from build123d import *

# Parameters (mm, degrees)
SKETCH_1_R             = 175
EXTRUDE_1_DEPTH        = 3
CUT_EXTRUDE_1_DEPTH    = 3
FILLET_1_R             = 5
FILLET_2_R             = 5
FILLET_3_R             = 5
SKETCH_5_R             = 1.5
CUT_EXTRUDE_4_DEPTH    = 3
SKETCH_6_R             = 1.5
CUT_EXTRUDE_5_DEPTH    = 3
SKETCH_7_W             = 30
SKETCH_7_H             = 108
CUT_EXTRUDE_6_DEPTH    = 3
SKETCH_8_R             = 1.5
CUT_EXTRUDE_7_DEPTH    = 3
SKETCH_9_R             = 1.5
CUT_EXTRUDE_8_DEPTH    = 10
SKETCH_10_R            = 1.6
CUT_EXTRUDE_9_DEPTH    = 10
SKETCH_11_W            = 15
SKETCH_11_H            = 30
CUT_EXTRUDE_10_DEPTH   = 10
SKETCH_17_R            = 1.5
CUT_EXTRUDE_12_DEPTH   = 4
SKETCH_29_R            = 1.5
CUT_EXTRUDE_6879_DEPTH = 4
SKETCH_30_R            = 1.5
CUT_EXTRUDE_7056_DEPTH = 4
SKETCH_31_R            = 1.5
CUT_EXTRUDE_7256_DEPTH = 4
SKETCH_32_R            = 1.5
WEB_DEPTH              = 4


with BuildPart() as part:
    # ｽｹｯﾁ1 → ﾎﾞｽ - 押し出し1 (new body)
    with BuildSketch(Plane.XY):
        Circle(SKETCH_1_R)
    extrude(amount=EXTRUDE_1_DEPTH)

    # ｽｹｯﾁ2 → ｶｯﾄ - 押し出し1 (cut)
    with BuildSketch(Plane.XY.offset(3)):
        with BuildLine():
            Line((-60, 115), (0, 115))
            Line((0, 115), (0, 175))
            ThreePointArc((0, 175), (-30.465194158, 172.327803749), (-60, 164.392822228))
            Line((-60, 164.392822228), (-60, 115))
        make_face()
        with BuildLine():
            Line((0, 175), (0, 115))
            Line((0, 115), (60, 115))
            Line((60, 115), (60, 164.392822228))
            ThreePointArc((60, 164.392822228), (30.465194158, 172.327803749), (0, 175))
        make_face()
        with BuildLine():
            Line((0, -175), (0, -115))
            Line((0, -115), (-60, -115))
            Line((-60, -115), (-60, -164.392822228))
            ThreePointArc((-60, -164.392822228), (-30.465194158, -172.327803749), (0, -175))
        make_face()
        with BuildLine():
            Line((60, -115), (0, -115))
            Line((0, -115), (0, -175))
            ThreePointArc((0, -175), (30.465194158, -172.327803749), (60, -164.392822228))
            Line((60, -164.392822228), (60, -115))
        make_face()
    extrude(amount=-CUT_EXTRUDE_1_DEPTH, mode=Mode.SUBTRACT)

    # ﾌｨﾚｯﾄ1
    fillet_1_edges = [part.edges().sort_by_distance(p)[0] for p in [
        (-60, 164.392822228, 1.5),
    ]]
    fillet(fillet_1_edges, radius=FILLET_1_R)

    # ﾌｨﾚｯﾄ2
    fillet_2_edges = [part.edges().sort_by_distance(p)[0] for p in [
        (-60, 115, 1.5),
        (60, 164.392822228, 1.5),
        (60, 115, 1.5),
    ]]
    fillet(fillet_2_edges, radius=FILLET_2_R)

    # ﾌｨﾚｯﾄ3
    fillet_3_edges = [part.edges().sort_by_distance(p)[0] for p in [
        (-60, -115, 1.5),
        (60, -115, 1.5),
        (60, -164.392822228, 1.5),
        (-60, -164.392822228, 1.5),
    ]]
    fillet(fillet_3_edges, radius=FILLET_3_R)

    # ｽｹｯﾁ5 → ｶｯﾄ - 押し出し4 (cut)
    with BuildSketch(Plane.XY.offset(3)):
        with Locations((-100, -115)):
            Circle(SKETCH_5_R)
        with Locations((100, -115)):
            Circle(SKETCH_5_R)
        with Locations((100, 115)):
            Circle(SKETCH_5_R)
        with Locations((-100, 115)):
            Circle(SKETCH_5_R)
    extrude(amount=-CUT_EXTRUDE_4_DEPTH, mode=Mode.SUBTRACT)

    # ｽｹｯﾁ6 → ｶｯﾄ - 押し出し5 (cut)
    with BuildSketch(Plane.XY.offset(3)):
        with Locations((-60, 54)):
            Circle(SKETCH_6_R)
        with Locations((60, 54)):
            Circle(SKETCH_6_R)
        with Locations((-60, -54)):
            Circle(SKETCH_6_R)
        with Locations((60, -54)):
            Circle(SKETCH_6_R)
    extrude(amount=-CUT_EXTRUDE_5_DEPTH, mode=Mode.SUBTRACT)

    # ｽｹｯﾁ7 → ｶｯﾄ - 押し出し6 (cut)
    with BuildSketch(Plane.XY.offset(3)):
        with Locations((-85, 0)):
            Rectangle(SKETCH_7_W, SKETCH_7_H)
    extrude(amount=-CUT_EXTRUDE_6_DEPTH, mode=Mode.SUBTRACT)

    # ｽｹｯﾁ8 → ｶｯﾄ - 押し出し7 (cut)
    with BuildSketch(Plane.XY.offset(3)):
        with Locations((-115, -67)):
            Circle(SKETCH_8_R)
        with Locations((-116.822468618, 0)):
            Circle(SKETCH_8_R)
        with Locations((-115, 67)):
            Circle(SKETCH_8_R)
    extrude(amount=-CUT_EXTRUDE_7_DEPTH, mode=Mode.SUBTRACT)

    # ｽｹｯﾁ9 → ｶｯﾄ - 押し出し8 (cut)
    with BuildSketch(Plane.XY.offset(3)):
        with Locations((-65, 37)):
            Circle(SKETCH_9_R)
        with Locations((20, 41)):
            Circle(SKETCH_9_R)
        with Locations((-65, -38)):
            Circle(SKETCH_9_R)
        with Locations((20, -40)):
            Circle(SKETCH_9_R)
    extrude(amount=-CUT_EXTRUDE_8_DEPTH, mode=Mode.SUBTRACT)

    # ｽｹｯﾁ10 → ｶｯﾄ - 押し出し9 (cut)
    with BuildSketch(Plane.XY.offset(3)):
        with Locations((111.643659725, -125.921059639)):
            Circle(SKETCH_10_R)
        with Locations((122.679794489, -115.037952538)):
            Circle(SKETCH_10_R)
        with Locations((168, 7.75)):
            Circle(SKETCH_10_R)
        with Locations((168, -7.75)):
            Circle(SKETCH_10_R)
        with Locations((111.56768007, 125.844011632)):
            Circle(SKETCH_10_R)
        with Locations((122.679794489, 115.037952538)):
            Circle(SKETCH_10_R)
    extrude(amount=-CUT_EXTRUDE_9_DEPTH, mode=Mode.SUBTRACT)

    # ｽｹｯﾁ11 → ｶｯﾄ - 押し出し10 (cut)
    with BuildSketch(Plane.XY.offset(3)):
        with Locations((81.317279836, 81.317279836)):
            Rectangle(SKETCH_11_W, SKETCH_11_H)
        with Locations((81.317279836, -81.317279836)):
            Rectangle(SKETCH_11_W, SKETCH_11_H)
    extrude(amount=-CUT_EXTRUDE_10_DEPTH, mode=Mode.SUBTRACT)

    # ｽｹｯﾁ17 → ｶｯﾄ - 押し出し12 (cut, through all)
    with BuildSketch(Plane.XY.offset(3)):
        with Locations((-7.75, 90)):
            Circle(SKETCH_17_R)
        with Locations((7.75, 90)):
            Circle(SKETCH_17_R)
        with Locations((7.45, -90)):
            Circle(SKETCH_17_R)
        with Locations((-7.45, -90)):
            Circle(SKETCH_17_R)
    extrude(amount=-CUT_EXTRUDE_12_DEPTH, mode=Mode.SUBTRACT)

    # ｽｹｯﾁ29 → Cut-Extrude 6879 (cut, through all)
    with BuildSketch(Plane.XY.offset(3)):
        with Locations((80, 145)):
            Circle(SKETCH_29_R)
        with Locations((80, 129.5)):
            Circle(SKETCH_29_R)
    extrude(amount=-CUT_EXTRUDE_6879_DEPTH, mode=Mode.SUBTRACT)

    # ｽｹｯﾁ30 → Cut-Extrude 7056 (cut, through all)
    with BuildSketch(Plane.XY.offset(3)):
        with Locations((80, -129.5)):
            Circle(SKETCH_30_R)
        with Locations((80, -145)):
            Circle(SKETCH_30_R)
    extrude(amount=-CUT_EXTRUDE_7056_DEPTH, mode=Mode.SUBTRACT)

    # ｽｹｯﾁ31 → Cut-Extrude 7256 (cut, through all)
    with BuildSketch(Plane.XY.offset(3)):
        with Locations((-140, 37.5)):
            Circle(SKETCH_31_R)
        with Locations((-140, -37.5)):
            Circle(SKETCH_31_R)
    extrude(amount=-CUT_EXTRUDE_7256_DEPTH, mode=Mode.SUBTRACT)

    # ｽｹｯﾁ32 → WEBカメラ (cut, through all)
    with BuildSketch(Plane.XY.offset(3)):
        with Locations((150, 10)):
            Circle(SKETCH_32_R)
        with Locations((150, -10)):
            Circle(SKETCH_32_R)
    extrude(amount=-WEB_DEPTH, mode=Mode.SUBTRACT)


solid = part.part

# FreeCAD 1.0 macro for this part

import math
import FreeCAD as App
import Part
import Sketcher


def edges_at(feature, points):
    """Names of the edges that pass closest to the given points."""
    edges = feature.Shape.Edges
    near = lambda p: min(range(len(edges)), key=lambda i: edges[i].distToShape(Part.Vertex(*p))[0])
    return sorted({f"Edge{near(p) + 1}" for p in points})

doc = App.newDocument("Part")
body = doc.addObject("PartDesign::Body", "Body")

sketch1 = doc.addObject("Sketcher::SketchObject", "Sketch")
body.addObject(sketch1)
sketch1.AttachmentSupport = (doc.XY_Plane, [""])
sketch1.MapMode = "FlatFace"
sketch1.addGeometry(Part.Circle(App.Vector(0, 0, 0), App.Vector(0, 0, 1), 175), False)
sketch1.addConstraint([
    Sketcher.Constraint("Coincident", 0, 3, -1, 1),
    Sketcher.Constraint("Diameter", 0, 350.0),
])
pad1 = doc.addObject("PartDesign::Pad", "Pad")
body.addObject(pad1)
pad1.Profile = sketch1
pad1.Length = 3

sketch2 = doc.addObject("Sketcher::SketchObject", "Sketch001")
body.addObject(sketch2)
sketch2.AttachmentSupport = (doc.XY_Plane, [""])
sketch2.MapMode = "FlatFace"
sketch2.AttachmentOffset = App.Placement(App.Vector(0, 0, 3), App.Rotation())
sketch2.addGeometry([
    Part.LineSegment(App.Vector(-60, 115, 0), App.Vector(60, 115, 0)),
    Part.LineSegment(App.Vector(60, 115, 0), App.Vector(60, 164, 0)),
    Part.ArcOfCircle(Part.Circle(App.Vector(0, 0, 0), App.Vector(0, 0, 1), 175), math.radians(70), math.radians(90)),
    Part.ArcOfCircle(Part.Circle(App.Vector(0, 0, 0), App.Vector(0, 0, 1), 175), math.radians(90), math.radians(110)),
    Part.LineSegment(App.Vector(-60, 164, 0), App.Vector(-60, 115, 0)),
    Part.LineSegment(App.Vector(-60, -115, 0), App.Vector(-60, -164, 0)),
    Part.ArcOfCircle(Part.Circle(App.Vector(0, 0, 0), App.Vector(0, 0, 1), 175), math.radians(-110), math.radians(-90)),
    Part.ArcOfCircle(Part.Circle(App.Vector(0, 0, 0), App.Vector(0, 0, 1), 175), math.radians(-90), math.radians(-70)),
    Part.LineSegment(App.Vector(60, -164, 0), App.Vector(60, -115, 0)),
    Part.LineSegment(App.Vector(60, -115, 0), App.Vector(-60, -115, 0)),
], False)
sketch2.addConstraint([
    Sketcher.Constraint("Coincident", 0, 2, 1, 1),
    Sketcher.Constraint("Coincident", 1, 2, 2, 1),
    Sketcher.Constraint("Tangent", 2, 2, 3, 1),
    Sketcher.Constraint("Coincident", 3, 2, 4, 1),
    Sketcher.Constraint("Coincident", 4, 2, 0, 1),
    Sketcher.Constraint("Coincident", 5, 2, 6, 1),
    Sketcher.Constraint("Tangent", 6, 2, 7, 1),
    Sketcher.Constraint("Coincident", 7, 2, 8, 1),
    Sketcher.Constraint("Coincident", 8, 2, 9, 1),
    Sketcher.Constraint("Coincident", 9, 2, 5, 1),
    Sketcher.Constraint("Horizontal", 0),
    Sketcher.Constraint("Vertical", 1),
    Sketcher.Constraint("Vertical", 4),
    Sketcher.Constraint("Vertical", 5),
    Sketcher.Constraint("Vertical", 8),
    Sketcher.Constraint("Horizontal", 9),
    Sketcher.Constraint("Coincident", 2, 3, -1, 1),
    Sketcher.Constraint("Coincident", 6, 3, -1, 1),
    Sketcher.Constraint("Equal", 2, 3),
    Sketcher.Constraint("Equal", 3, 6),
    Sketcher.Constraint("Equal", 6, 7),
    Sketcher.Constraint("Symmetric", 4, 2, 8, 2, -1, 1),
    Sketcher.Constraint("PointOnObject", 2, 2, -2),
    Sketcher.Constraint("PointOnObject", 6, 2, -2),
    Sketcher.Constraint("Horizontal", 1, 2, 3, 2),
    Sketcher.Constraint("Horizontal", 5, 2, 7, 2),
    Sketcher.Constraint("Radius", 2, 175.0),
    Sketcher.Constraint("DistanceX", 0, 1, 0, 2, 120.0),
    Sketcher.Constraint("DistanceY", -1, 1, 0, 2, 115.0),
])
pocket1 = doc.addObject("PartDesign::Pocket", "Pocket")
body.addObject(pocket1)
pocket1.Profile = sketch2
pocket1.Length = 3
doc.recompute()

fillet = doc.addObject("PartDesign::Fillet", "Fillet")
body.addObject(fillet)
fillet.Base = (pocket1, edges_at(pocket1, [(-60, 164.393, 1.5)]))
fillet.Radius = 5
doc.recompute()

fillet2 = doc.addObject("PartDesign::Fillet", "Fillet001")
body.addObject(fillet2)
fillet2.Base = (fillet, edges_at(fillet, [(-60, 115, 1.5), (60, 164.393, 1.5), (60, 115, 1.5)]))
fillet2.Radius = 5
doc.recompute()

fillet3 = doc.addObject("PartDesign::Fillet", "Fillet002")
body.addObject(fillet3)
fillet3.Base = (fillet2, edges_at(fillet2, [
    (-60, -115, 1.5),
    (60, -115, 1.5),
    (60, -164.393, 1.5),
    (-60, -164.393, 1.5),
]))
fillet3.Radius = 5

sketch3 = doc.addObject("Sketcher::SketchObject", "Sketch002")
body.addObject(sketch3)
sketch3.AttachmentSupport = (doc.XY_Plane, [""])
sketch3.MapMode = "FlatFace"
sketch3.AttachmentOffset = App.Placement(App.Vector(0, 0, 3), App.Rotation())
sketch3.addGeometry([
    Part.Circle(App.Vector(-100, -115, 0), App.Vector(0, 0, 1), 1.5),
    Part.Circle(App.Vector(100, -115, 0), App.Vector(0, 0, 1), 1.5),
    Part.Circle(App.Vector(100, 115, 0), App.Vector(0, 0, 1), 1.5),
    Part.Circle(App.Vector(-100, 115, 0), App.Vector(0, 0, 1), 1.5),
], False)
sketch3.addConstraint([
    Sketcher.Constraint("Equal", 0, 1),
    Sketcher.Constraint("Equal", 1, 2),
    Sketcher.Constraint("Equal", 2, 3),
    Sketcher.Constraint("Symmetric", 0, 3, 2, 3, -1, 1),
    Sketcher.Constraint("Symmetric", 1, 3, 3, 3, -1, 1),
    Sketcher.Constraint("Symmetric", 0, 3, 1, 3, -2),
    Sketcher.Constraint("Diameter", 0, 3.0),
    Sketcher.Constraint("DistanceX", 0, 3, -1, 1, 100.0),
    Sketcher.Constraint("DistanceY", 0, 3, -1, 1, 115.0),
])
pocket2 = doc.addObject("PartDesign::Pocket", "Pocket001")
body.addObject(pocket2)
pocket2.Profile = sketch3
pocket2.Length = 3

sketch4 = doc.addObject("Sketcher::SketchObject", "Sketch003")
body.addObject(sketch4)
sketch4.AttachmentSupport = (doc.XY_Plane, [""])
sketch4.MapMode = "FlatFace"
sketch4.AttachmentOffset = App.Placement(App.Vector(0, 0, 3), App.Rotation())
sketch4.addGeometry([
    Part.Circle(App.Vector(-60, 54, 0), App.Vector(0, 0, 1), 1.5),
    Part.Circle(App.Vector(60, 54, 0), App.Vector(0, 0, 1), 1.5),
    Part.Circle(App.Vector(-60, -54, 0), App.Vector(0, 0, 1), 1.5),
    Part.Circle(App.Vector(60, -54, 0), App.Vector(0, 0, 1), 1.5),
], False)
sketch4.addConstraint([
    Sketcher.Constraint("Equal", 0, 1),
    Sketcher.Constraint("Equal", 1, 2),
    Sketcher.Constraint("Equal", 2, 3),
    Sketcher.Constraint("Symmetric", 1, 3, 2, 3, -1, 1),
    Sketcher.Constraint("Symmetric", 0, 3, 3, 3, -1, 1),
    Sketcher.Constraint("Symmetric", 0, 3, 1, 3, -2),
    Sketcher.Constraint("Diameter", 0, 3.0),
    Sketcher.Constraint("DistanceX", 0, 3, -1, 1, 60.0),
    Sketcher.Constraint("DistanceY", -1, 1, 0, 3, 54.0),
])
pocket3 = doc.addObject("PartDesign::Pocket", "Pocket002")
body.addObject(pocket3)
pocket3.Profile = sketch4
pocket3.Length = 3

sketch5 = doc.addObject("Sketcher::SketchObject", "Sketch004")
body.addObject(sketch5)
sketch5.AttachmentSupport = (doc.XY_Plane, [""])
sketch5.MapMode = "FlatFace"
sketch5.AttachmentOffset = App.Placement(App.Vector(0, 0, 3), App.Rotation())
sketch5.addGeometry([
    Part.LineSegment(App.Vector(-100, 54, 0), App.Vector(-100, -54, 0)),
    Part.LineSegment(App.Vector(-100, -54, 0), App.Vector(-70, -54, 0)),
    Part.LineSegment(App.Vector(-70, -54, 0), App.Vector(-70, 54, 0)),
    Part.LineSegment(App.Vector(-70, 54, 0), App.Vector(-100, 54, 0)),
], False)
sketch5.addConstraint([
    Sketcher.Constraint("Coincident", 0, 2, 1, 1),
    Sketcher.Constraint("Coincident", 1, 2, 2, 1),
    Sketcher.Constraint("Coincident", 2, 2, 3, 1),
    Sketcher.Constraint("Coincident", 3, 2, 0, 1),
    Sketcher.Constraint("Vertical", 0),
    Sketcher.Constraint("Horizontal", 1),
    Sketcher.Constraint("Vertical", 2),
    Sketcher.Constraint("Horizontal", 3),
    Sketcher.Constraint("DistanceX", 1, 1, 1, 2, 30.0),
    Sketcher.Constraint("DistanceY", 0, 2, 0, 1, 108.0),
    Sketcher.Constraint("DistanceX", 0, 2, -1, 1, 100.0),
    Sketcher.Constraint("DistanceY", 0, 2, -1, 1, 54.0),
])
pocket4 = doc.addObject("PartDesign::Pocket", "Pocket003")
body.addObject(pocket4)
pocket4.Profile = sketch5
pocket4.Length = 3

sketch6 = doc.addObject("Sketcher::SketchObject", "Sketch005")
body.addObject(sketch6)
sketch6.AttachmentSupport = (doc.XY_Plane, [""])
sketch6.MapMode = "FlatFace"
sketch6.AttachmentOffset = App.Placement(App.Vector(0, 0, 3), App.Rotation())
sketch6.addGeometry([
    Part.Circle(App.Vector(-115, -67, 0), App.Vector(0, 0, 1), 1.5),
    Part.Circle(App.Vector(-116.8, 0, 0), App.Vector(0, 0, 1), 1.5),
    Part.Circle(App.Vector(-115, 67, 0), App.Vector(0, 0, 1), 1.5),
], False)
sketch6.addConstraint([
    Sketcher.Constraint("Equal", 0, 1),
    Sketcher.Constraint("Equal", 1, 2),
    Sketcher.Constraint("Symmetric", 0, 3, 2, 3, -1),
    Sketcher.Constraint("PointOnObject", 1, 3, -1),
    Sketcher.Constraint("Diameter", 0, 3.0),
    Sketcher.Constraint("DistanceX", 0, 3, -1, 1, 115.0),
    Sketcher.Constraint("DistanceY", 0, 3, -1, 1, 67.0),
    Sketcher.Constraint("DistanceX", 1, 3, -1, 1, 116.822469),
])
pocket5 = doc.addObject("PartDesign::Pocket", "Pocket004")
body.addObject(pocket5)
pocket5.Profile = sketch6
pocket5.Length = 3

sketch7 = doc.addObject("Sketcher::SketchObject", "Sketch006")
body.addObject(sketch7)
sketch7.AttachmentSupport = (doc.XY_Plane, [""])
sketch7.MapMode = "FlatFace"
sketch7.AttachmentOffset = App.Placement(App.Vector(0, 0, 3), App.Rotation())
sketch7.addGeometry([
    Part.Circle(App.Vector(-65, 37, 0), App.Vector(0, 0, 1), 1.5),
    Part.Circle(App.Vector(20, 41, 0), App.Vector(0, 0, 1), 1.5),
    Part.Circle(App.Vector(-65, -38, 0), App.Vector(0, 0, 1), 1.5),
    Part.Circle(App.Vector(20, -40, 0), App.Vector(0, 0, 1), 1.5),
], False)
sketch7.addConstraint([
    Sketcher.Constraint("Equal", 0, 1),
    Sketcher.Constraint("Equal", 1, 2),
    Sketcher.Constraint("Equal", 2, 3),
    Sketcher.Constraint("Vertical", 0, 3, 2, 3),
    Sketcher.Constraint("Vertical", 1, 3, 3, 3),
    Sketcher.Constraint("Diameter", 0, 3.0),
    Sketcher.Constraint("DistanceX", 0, 3, -1, 1, 65.0),
    Sketcher.Constraint("DistanceY", -1, 1, 0, 3, 37.0),
    Sketcher.Constraint("DistanceX", -1, 1, 1, 3, 20.0),
    Sketcher.Constraint("DistanceY", -1, 1, 1, 3, 41.0),
    Sketcher.Constraint("DistanceY", 2, 3, -1, 1, 38.0),
    Sketcher.Constraint("DistanceY", 3, 3, -1, 1, 40.0),
])
pocket6 = doc.addObject("PartDesign::Pocket", "Pocket005")
body.addObject(pocket6)
pocket6.Profile = sketch7
pocket6.Length = 10

sketch8 = doc.addObject("Sketcher::SketchObject", "Sketch007")
body.addObject(sketch8)
sketch8.AttachmentSupport = (doc.XY_Plane, [""])
sketch8.MapMode = "FlatFace"
sketch8.AttachmentOffset = App.Placement(App.Vector(0, 0, 3), App.Rotation())
sketch8.addGeometry([
    Part.Circle(App.Vector(111.6, -125.9, 0), App.Vector(0, 0, 1), 1.6),
    Part.Circle(App.Vector(122.7, -115, 0), App.Vector(0, 0, 1), 1.6),
    Part.Circle(App.Vector(168, 7.8, 0), App.Vector(0, 0, 1), 1.6),
    Part.Circle(App.Vector(168, -7.8, 0), App.Vector(0, 0, 1), 1.6),
    Part.Circle(App.Vector(111.6, 125.8, 0), App.Vector(0, 0, 1), 1.6),
    Part.Circle(App.Vector(122.7, 115, 0), App.Vector(0, 0, 1), 1.6),
], False)
sketch8.addConstraint([
    Sketcher.Constraint("Equal", 0, 1),
    Sketcher.Constraint("Equal", 1, 2),
    Sketcher.Constraint("Equal", 2, 3),
    Sketcher.Constraint("Equal", 3, 4),
    Sketcher.Constraint("Equal", 4, 5),
    Sketcher.Constraint("Symmetric", 2, 3, 3, 3, -1),
    Sketcher.Constraint("Symmetric", 1, 3, 5, 3, -1),
    Sketcher.Constraint("Diameter", 0, 3.2),
    Sketcher.Constraint("DistanceX", -1, 1, 2, 3, 168.0),
    Sketcher.Constraint("DistanceY", 3, 3, 2, 3, 15.5),
    Sketcher.Constraint("DistanceX", -1, 1, 0, 3, 111.64366),
    Sketcher.Constraint("DistanceY", 0, 3, -1, 1, 125.92106),
    Sketcher.Constraint("DistanceX", -1, 1, 4, 3, 111.56768),
    Sketcher.Constraint("DistanceY", -1, 1, 4, 3, 125.844012),
    Sketcher.Constraint("DistanceY", 5, 3, 4, 3, 10.806059),
    Sketcher.Constraint("DistanceX", -1, 1, 1, 3, 122.679794),
])
pocket7 = doc.addObject("PartDesign::Pocket", "Pocket006")
body.addObject(pocket7)
pocket7.Profile = sketch8
pocket7.Length = 10

sketch9 = doc.addObject("Sketcher::SketchObject", "Sketch008")
body.addObject(sketch9)
sketch9.AttachmentSupport = (doc.XY_Plane, [""])
sketch9.MapMode = "FlatFace"
sketch9.AttachmentOffset = App.Placement(App.Vector(0, 0, 3), App.Rotation())
sketch9.addGeometry([
    Part.LineSegment(App.Vector(74, 96, 0), App.Vector(74, 66, 0)),
    Part.LineSegment(App.Vector(74, 66, 0), App.Vector(89, 66, 0)),
    Part.LineSegment(App.Vector(89, 66, 0), App.Vector(89, 96, 0)),
    Part.LineSegment(App.Vector(89, 96, 0), App.Vector(74, 96, 0)),
    Part.LineSegment(App.Vector(74, -66, 0), App.Vector(74, -96, 0)),
    Part.LineSegment(App.Vector(74, -96, 0), App.Vector(89, -96, 0)),
    Part.LineSegment(App.Vector(89, -96, 0), App.Vector(89, -66, 0)),
    Part.LineSegment(App.Vector(89, -66, 0), App.Vector(74, -66, 0)),
], False)
sketch9.addConstraint([
    Sketcher.Constraint("Coincident", 0, 2, 1, 1),
    Sketcher.Constraint("Coincident", 1, 2, 2, 1),
    Sketcher.Constraint("Coincident", 2, 2, 3, 1),
    Sketcher.Constraint("Coincident", 3, 2, 0, 1),
    Sketcher.Constraint("Coincident", 4, 2, 5, 1),
    Sketcher.Constraint("Coincident", 5, 2, 6, 1),
    Sketcher.Constraint("Coincident", 6, 2, 7, 1),
    Sketcher.Constraint("Coincident", 7, 2, 4, 1),
    Sketcher.Constraint("Vertical", 0),
    Sketcher.Constraint("Horizontal", 1),
    Sketcher.Constraint("Vertical", 2),
    Sketcher.Constraint("Horizontal", 3),
    Sketcher.Constraint("Vertical", 4),
    Sketcher.Constraint("Horizontal", 5),
    Sketcher.Constraint("Vertical", 6),
    Sketcher.Constraint("Horizontal", 7),
    Sketcher.Constraint("Symmetric", 3, 2, 4, 2, -1),
    Sketcher.Constraint("Symmetric", 1, 2, 6, 2, -1),
    Sketcher.Constraint("DistanceX", 1, 1, 1, 2, 15.0),
    Sketcher.Constraint("DistanceY", 0, 2, 0, 1, 30.0),
    Sketcher.Constraint("DistanceX", -1, 1, 0, 2, 73.81728),
    Sketcher.Constraint("DistanceY", -1, 1, 0, 2, 66.31728),
])
pocket8 = doc.addObject("PartDesign::Pocket", "Pocket007")
body.addObject(pocket8)
pocket8.Profile = sketch9
pocket8.Length = 10

sketch10 = doc.addObject("Sketcher::SketchObject", "Sketch009")
body.addObject(sketch10)
sketch10.AttachmentSupport = (doc.XY_Plane, [""])
sketch10.MapMode = "FlatFace"
sketch10.AttachmentOffset = App.Placement(App.Vector(0, 0, 3), App.Rotation())
sketch10.addGeometry([
    Part.Circle(App.Vector(-7.8, 90, 0), App.Vector(0, 0, 1), 1.5),
    Part.Circle(App.Vector(7.8, 90, 0), App.Vector(0, 0, 1), 1.5),
    Part.Circle(App.Vector(7.5, -90, 0), App.Vector(0, 0, 1), 1.5),
    Part.Circle(App.Vector(-7.5, -90, 0), App.Vector(0, 0, 1), 1.5),
], False)
sketch10.addConstraint([
    Sketcher.Constraint("Equal", 0, 1),
    Sketcher.Constraint("Equal", 1, 2),
    Sketcher.Constraint("Equal", 2, 3),
    Sketcher.Constraint("Symmetric", 0, 3, 1, 3, -2),
    Sketcher.Constraint("Symmetric", 2, 3, 3, 3, -2),
    Sketcher.Constraint("Diameter", 0, 3.0),
    Sketcher.Constraint("DistanceY", -1, 1, 0, 3, 90.0),
    Sketcher.Constraint("DistanceY", 2, 3, -1, 1, 90.0),
    Sketcher.Constraint("DistanceX", 0, 3, 1, 3, 15.5),
    Sketcher.Constraint("DistanceX", 2, 3, 1, 3, 0.3),
])
pocket9 = doc.addObject("PartDesign::Pocket", "Pocket008")
body.addObject(pocket9)
pocket9.Profile = sketch10
pocket9.Type = "ThroughAll"

sketch11 = doc.addObject("Sketcher::SketchObject", "Sketch010")
body.addObject(sketch11)
sketch11.AttachmentSupport = (doc.XY_Plane, [""])
sketch11.MapMode = "FlatFace"
sketch11.AttachmentOffset = App.Placement(App.Vector(0, 0, 3), App.Rotation())
sketch11.addGeometry([
    Part.Circle(App.Vector(80, 145, 0), App.Vector(0, 0, 1), 1.5),
    Part.Circle(App.Vector(80, 129.5, 0), App.Vector(0, 0, 1), 1.5),
], False)
sketch11.addConstraint([
    Sketcher.Constraint("Equal", 0, 1),
    Sketcher.Constraint("Vertical", 0, 3, 1, 3),
    Sketcher.Constraint("Diameter", 0, 3.0),
    Sketcher.Constraint("DistanceX", -1, 1, 0, 3, 80.0),
    Sketcher.Constraint("DistanceY", -1, 1, 0, 3, 145.0),
    Sketcher.Constraint("DistanceY", -1, 1, 1, 3, 129.5),
])
pocket10 = doc.addObject("PartDesign::Pocket", "Pocket009")
body.addObject(pocket10)
pocket10.Profile = sketch11
pocket10.Type = "ThroughAll"

sketch12 = doc.addObject("Sketcher::SketchObject", "Sketch011")
body.addObject(sketch12)
sketch12.AttachmentSupport = (doc.XY_Plane, [""])
sketch12.MapMode = "FlatFace"
sketch12.AttachmentOffset = App.Placement(App.Vector(0, 0, 3), App.Rotation())
sketch12.addGeometry([
    Part.Circle(App.Vector(80, -129.5, 0), App.Vector(0, 0, 1), 1.5),
    Part.Circle(App.Vector(80, -145, 0), App.Vector(0, 0, 1), 1.5),
], False)
sketch12.addConstraint([
    Sketcher.Constraint("Equal", 0, 1),
    Sketcher.Constraint("Vertical", 0, 3, 1, 3),
    Sketcher.Constraint("Diameter", 0, 3.0),
    Sketcher.Constraint("DistanceX", -1, 1, 0, 3, 80.0),
    Sketcher.Constraint("DistanceY", 1, 3, -1, 1, 145.0),
    Sketcher.Constraint("DistanceY", 0, 3, -1, 1, 129.5),
])
pocket11 = doc.addObject("PartDesign::Pocket", "Pocket010")
body.addObject(pocket11)
pocket11.Profile = sketch12
pocket11.Type = "ThroughAll"

sketch13 = doc.addObject("Sketcher::SketchObject", "Sketch012")
body.addObject(sketch13)
sketch13.AttachmentSupport = (doc.XY_Plane, [""])
sketch13.MapMode = "FlatFace"
sketch13.AttachmentOffset = App.Placement(App.Vector(0, 0, 3), App.Rotation())
sketch13.addGeometry([
    Part.Circle(App.Vector(-140, 37.5, 0), App.Vector(0, 0, 1), 1.5),
    Part.Circle(App.Vector(-140, -37.5, 0), App.Vector(0, 0, 1), 1.5),
], False)
sketch13.addConstraint([
    Sketcher.Constraint("Equal", 0, 1),
    Sketcher.Constraint("Symmetric", 0, 3, 1, 3, -1),
    Sketcher.Constraint("Diameter", 0, 3.0),
    Sketcher.Constraint("DistanceX", 0, 3, -1, 1, 140.0),
    Sketcher.Constraint("DistanceY", 1, 3, 0, 3, 75.0),
])
pocket12 = doc.addObject("PartDesign::Pocket", "Pocket011")
body.addObject(pocket12)
pocket12.Profile = sketch13
pocket12.Type = "ThroughAll"

sketch14 = doc.addObject("Sketcher::SketchObject", "Sketch013")
body.addObject(sketch14)
sketch14.AttachmentSupport = (doc.XY_Plane, [""])
sketch14.MapMode = "FlatFace"
sketch14.AttachmentOffset = App.Placement(App.Vector(0, 0, 3), App.Rotation())
sketch14.addGeometry([
    Part.Circle(App.Vector(150, 10, 0), App.Vector(0, 0, 1), 1.5),
    Part.Circle(App.Vector(150, -10, 0), App.Vector(0, 0, 1), 1.5),
], False)
sketch14.addConstraint([
    Sketcher.Constraint("Equal", 0, 1),
    Sketcher.Constraint("Symmetric", 0, 3, 1, 3, -1),
    Sketcher.Constraint("Diameter", 0, 3.0),
    Sketcher.Constraint("DistanceX", -1, 1, 0, 3, 150.0),
    Sketcher.Constraint("DistanceY", -1, 1, 0, 3, 10.0),
])
pocket13 = doc.addObject("PartDesign::Pocket", "Pocket012")
body.addObject(pocket13)
pocket13.Profile = sketch14
pocket13.Type = "ThroughAll"

doc.recompute()
